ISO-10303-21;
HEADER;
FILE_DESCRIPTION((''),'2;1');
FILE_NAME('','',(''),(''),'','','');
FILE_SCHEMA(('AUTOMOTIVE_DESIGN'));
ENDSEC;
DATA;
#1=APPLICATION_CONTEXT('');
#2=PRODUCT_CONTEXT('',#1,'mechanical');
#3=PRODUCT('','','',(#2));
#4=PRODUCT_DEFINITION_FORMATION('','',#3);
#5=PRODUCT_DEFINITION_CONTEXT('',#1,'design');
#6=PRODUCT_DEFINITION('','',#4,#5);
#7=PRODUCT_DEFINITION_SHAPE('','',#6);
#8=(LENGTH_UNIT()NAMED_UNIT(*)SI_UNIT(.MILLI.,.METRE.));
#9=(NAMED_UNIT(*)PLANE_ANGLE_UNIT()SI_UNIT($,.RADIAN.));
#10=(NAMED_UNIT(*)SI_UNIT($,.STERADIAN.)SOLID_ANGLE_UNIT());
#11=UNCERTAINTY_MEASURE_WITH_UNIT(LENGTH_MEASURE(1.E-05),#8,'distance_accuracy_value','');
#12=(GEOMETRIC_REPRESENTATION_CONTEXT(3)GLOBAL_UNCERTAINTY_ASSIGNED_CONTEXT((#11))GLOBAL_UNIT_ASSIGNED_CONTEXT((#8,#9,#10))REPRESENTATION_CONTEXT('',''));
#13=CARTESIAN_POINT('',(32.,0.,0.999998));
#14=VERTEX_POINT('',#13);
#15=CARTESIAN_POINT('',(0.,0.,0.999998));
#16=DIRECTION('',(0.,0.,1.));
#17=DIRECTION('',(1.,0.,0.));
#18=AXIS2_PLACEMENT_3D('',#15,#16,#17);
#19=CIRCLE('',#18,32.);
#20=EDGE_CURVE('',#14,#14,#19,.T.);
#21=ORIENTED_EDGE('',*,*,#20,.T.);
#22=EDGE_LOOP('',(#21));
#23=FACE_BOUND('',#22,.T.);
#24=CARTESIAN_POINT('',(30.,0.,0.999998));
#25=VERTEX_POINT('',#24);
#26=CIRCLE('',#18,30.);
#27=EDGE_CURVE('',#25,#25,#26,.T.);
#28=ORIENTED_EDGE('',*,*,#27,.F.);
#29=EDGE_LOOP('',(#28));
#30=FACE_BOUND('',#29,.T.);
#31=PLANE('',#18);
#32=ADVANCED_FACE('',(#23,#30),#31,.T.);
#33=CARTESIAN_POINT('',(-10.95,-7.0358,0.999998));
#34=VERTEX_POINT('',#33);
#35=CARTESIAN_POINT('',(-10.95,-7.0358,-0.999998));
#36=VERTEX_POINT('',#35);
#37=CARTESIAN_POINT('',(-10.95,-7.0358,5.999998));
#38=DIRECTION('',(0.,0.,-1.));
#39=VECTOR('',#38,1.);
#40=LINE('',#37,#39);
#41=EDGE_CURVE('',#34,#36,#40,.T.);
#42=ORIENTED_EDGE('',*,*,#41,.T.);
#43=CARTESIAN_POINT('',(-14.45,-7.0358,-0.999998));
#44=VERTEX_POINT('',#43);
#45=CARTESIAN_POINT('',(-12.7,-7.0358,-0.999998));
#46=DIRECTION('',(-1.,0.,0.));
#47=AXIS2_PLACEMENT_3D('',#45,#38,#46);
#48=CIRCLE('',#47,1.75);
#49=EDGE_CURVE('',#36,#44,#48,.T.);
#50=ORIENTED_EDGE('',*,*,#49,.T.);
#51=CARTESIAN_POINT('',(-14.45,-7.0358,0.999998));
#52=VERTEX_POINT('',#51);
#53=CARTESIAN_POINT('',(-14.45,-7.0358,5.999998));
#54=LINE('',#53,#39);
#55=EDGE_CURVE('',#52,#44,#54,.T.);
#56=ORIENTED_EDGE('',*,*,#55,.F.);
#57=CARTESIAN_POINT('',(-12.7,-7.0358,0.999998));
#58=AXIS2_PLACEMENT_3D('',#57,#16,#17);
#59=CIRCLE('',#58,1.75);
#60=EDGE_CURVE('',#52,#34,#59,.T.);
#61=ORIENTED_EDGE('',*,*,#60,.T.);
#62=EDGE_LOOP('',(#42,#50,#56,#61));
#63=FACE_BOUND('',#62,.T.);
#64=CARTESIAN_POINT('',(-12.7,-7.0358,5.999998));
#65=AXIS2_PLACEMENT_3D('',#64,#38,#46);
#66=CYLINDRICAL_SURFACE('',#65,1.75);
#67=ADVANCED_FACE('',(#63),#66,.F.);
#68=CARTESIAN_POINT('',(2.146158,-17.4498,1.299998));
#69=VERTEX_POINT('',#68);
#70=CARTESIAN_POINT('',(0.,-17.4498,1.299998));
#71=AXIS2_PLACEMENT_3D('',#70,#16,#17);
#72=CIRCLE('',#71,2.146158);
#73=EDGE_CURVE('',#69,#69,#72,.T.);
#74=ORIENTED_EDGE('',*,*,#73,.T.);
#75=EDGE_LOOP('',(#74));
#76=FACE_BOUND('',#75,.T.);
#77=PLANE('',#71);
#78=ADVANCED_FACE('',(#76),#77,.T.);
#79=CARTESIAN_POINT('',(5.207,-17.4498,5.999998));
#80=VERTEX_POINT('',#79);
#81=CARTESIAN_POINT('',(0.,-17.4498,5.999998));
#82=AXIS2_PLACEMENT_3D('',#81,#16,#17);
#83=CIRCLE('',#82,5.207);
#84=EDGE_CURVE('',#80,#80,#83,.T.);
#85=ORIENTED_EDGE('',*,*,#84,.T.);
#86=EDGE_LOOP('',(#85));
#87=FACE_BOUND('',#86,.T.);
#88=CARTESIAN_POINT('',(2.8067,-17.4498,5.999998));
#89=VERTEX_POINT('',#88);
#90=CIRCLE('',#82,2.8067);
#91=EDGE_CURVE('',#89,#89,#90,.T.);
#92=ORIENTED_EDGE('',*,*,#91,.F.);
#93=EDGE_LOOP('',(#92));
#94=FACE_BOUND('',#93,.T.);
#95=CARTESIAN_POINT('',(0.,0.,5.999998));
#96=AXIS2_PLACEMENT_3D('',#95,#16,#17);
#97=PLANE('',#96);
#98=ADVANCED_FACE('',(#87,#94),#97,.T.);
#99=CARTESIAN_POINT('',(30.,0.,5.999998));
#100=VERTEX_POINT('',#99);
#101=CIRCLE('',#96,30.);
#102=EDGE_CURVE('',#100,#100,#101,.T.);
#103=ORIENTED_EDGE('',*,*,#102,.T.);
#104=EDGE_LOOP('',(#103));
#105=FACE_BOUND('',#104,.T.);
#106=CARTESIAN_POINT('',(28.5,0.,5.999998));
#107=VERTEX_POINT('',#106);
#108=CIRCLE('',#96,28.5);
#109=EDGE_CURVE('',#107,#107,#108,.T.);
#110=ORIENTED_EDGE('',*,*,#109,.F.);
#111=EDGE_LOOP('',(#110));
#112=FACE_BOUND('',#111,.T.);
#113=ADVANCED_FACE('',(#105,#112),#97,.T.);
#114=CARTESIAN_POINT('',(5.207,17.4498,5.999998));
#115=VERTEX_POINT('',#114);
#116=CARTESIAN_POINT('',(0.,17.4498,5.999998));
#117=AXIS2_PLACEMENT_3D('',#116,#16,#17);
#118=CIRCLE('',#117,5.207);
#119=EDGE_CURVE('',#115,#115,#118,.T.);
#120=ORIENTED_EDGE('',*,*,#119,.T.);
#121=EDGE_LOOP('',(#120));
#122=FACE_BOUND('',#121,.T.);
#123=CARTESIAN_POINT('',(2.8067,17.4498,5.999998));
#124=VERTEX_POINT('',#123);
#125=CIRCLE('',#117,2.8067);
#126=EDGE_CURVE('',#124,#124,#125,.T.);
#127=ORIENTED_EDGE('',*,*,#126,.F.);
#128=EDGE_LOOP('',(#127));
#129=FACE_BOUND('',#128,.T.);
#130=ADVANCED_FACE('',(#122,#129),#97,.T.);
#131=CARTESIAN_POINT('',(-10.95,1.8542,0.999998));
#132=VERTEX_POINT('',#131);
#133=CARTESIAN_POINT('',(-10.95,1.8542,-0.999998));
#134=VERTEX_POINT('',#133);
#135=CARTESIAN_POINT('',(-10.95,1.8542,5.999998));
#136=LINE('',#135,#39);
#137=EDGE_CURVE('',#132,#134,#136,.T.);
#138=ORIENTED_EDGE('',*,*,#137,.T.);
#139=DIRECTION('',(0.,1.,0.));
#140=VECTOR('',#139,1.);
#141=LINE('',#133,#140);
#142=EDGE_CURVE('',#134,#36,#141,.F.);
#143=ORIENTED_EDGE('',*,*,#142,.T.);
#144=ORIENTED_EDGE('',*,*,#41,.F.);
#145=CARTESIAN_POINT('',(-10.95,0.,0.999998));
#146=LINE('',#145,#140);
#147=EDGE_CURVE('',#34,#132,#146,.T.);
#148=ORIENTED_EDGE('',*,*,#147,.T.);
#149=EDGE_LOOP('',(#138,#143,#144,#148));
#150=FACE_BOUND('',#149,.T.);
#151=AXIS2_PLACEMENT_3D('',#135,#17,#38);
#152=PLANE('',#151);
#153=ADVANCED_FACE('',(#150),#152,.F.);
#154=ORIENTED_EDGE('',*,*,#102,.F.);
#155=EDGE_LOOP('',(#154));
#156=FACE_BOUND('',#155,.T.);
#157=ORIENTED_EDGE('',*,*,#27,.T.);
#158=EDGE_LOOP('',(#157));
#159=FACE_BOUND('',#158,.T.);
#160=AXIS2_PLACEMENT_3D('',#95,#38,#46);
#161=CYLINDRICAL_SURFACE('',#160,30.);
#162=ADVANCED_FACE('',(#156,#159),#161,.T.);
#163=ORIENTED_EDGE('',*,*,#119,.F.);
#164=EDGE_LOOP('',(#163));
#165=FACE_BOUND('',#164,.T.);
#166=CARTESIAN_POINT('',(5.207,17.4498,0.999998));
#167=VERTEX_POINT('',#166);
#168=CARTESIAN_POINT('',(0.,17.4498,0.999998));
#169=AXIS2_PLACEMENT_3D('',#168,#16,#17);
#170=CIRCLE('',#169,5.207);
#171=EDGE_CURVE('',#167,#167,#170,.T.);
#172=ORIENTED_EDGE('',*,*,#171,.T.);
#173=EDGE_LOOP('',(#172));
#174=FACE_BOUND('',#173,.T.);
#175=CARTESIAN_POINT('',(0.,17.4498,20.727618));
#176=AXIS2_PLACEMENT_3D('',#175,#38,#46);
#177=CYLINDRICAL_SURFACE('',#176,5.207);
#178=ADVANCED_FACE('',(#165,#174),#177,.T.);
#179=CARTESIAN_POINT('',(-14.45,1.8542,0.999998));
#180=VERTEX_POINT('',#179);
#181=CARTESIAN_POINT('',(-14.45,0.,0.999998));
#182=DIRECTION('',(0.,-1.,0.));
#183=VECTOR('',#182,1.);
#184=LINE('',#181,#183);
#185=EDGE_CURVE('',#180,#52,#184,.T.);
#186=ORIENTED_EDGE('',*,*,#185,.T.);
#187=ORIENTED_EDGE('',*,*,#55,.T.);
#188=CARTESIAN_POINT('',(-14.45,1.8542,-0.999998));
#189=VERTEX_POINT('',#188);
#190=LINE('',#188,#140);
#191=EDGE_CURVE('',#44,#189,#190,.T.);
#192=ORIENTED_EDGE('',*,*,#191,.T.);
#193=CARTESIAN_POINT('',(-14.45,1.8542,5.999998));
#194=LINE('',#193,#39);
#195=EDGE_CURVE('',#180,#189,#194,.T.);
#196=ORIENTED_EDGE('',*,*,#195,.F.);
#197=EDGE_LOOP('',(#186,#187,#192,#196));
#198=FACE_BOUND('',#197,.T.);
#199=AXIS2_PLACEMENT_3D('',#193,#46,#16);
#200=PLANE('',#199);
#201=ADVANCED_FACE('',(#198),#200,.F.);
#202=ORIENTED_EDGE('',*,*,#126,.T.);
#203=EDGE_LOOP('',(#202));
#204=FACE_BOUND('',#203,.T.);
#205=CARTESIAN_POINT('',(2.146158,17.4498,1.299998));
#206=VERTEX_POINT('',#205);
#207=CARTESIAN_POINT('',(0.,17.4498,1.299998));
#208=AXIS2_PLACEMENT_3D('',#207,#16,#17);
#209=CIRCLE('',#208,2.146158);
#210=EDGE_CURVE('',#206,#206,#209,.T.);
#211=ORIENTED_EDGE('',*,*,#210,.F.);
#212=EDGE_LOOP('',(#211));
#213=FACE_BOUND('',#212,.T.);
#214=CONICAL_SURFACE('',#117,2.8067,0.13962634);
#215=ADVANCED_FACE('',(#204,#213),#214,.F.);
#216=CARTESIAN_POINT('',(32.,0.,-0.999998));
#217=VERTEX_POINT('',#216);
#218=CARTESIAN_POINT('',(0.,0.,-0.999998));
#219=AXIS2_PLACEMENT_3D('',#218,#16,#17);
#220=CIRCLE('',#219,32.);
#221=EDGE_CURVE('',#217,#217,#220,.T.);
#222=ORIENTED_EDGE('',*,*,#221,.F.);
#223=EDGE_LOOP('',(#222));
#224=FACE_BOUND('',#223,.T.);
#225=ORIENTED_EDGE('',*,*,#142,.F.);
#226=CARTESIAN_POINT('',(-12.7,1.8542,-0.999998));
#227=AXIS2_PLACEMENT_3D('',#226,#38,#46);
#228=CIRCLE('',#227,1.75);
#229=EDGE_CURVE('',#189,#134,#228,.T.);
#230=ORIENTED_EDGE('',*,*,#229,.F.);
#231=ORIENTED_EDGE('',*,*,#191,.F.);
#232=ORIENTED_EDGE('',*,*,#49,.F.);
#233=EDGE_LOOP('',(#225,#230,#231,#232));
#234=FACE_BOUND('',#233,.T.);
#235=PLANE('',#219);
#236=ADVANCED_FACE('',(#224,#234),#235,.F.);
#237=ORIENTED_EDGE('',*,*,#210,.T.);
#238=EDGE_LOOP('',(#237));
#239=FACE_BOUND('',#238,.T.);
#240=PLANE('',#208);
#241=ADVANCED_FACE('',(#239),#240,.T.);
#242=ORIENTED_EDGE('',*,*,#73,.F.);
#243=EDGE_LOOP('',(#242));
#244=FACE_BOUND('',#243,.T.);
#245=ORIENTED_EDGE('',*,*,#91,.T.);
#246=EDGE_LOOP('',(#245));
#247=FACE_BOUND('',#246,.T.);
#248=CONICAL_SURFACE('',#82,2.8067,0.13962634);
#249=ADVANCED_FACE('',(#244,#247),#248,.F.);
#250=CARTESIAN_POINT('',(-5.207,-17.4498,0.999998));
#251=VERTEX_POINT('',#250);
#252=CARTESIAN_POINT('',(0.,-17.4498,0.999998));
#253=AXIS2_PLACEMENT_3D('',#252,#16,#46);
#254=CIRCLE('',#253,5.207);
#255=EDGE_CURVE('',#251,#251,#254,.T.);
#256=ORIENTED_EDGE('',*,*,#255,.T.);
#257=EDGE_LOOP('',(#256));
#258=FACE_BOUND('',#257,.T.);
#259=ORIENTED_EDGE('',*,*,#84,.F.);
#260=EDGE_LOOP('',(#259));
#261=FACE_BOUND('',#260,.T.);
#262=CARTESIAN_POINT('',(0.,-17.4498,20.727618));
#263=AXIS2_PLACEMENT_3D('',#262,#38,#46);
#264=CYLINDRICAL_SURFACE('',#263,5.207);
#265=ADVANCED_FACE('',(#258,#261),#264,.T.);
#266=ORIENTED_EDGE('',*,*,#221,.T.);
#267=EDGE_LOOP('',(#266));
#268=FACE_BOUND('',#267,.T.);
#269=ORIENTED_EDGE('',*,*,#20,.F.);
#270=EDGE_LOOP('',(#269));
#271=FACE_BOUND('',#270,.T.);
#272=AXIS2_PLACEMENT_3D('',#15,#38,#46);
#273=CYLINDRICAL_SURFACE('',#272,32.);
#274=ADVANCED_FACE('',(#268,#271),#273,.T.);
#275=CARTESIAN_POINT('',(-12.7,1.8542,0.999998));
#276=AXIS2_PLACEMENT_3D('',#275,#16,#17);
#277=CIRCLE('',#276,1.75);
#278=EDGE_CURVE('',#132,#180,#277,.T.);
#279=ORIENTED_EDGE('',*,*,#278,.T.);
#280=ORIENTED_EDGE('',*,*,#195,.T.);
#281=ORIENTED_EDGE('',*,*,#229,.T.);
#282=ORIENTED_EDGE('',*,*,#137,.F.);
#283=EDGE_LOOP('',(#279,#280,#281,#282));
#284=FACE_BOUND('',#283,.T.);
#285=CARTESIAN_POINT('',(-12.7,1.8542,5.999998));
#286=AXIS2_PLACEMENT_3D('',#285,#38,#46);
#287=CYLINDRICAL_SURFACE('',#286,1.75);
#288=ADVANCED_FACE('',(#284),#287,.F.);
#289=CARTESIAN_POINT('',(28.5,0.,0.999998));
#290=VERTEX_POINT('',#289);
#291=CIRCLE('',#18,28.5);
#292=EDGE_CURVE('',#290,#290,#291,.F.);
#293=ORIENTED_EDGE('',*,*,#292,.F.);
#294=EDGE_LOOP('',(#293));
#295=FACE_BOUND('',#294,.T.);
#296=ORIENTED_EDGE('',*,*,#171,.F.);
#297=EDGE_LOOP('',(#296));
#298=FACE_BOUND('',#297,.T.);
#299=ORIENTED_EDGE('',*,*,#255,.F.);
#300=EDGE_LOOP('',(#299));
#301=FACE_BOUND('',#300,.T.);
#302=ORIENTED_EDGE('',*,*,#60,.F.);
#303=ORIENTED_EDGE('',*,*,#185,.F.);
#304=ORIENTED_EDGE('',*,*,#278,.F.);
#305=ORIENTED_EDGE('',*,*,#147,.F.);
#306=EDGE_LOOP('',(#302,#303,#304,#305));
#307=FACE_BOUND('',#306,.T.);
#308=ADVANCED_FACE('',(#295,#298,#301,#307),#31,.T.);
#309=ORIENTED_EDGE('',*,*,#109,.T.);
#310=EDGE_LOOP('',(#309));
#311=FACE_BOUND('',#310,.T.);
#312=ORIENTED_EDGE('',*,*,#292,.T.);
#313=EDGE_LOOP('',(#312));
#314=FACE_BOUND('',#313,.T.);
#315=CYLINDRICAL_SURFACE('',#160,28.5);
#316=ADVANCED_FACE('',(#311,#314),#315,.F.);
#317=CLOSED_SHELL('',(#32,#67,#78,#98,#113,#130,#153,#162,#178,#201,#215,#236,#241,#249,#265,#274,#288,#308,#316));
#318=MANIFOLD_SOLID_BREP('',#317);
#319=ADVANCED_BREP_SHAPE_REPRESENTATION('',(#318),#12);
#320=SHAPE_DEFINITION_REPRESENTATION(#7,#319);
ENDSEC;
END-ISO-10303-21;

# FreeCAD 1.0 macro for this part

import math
import FreeCAD as App
import Part
import Sketcher
Q = App.Units.Quantity

doc = App.newDocument("Part")
body = doc.addObject("PartDesign::Body", "Body")

# Sketch on XY plane
sketch1 = body.newObject("Sketcher::SketchObject", "Sketch")
sketch1.AttachmentSupport = (doc.getObject("XY_Plane"), [""])
sketch1.MapMode = "FlatFace"
sketch1.addGeometry(Part.Circle(App.Vector(0, 0, 0), App.Vector(0, 0, 1), 32), False)
sketch1.addConstraint([
    Sketcher.Constraint("Coincident", 0, 3, -1, 1),
    Sketcher.Constraint("Diameter", 0, Q("64 mm")),
])
pad1 = body.newObject("PartDesign::Pad", "Pad")
pad1.Profile = sketch1
pad1.Length = 1.999996
pad1.Midplane = True

# Sketch on XY plane
sketch2 = body.newObject("Sketcher::SketchObject", "Sketch001")
sketch2.AttachmentSupport = (doc.getObject("XY_Plane"), [""])
sketch2.MapMode = "FlatFace"
sketch2.AttachmentOffset = App.Placement(App.Vector(0, 0, 0.999998), App.Rotation())
sketch2.addGeometry([
    Part.Circle(App.Vector(0, 0, 0), App.Vector(0, 0, 1), 30),
    Part.Circle(App.Vector(0, 0, 0), App.Vector(0, 0, 1), 28),
], False)
sketch2.addConstraint([
    Sketcher.Constraint("Coincident", 0, 3, -1, 1),
    Sketcher.Constraint("Coincident", 1, 3, -1, 1),
    Sketcher.Constraint("Diameter", 0, Q("60 mm")),
    Sketcher.Constraint("Diameter", 1, Q("57 mm")),
])
pad2 = body.newObject("PartDesign::Pad", "Pad001")
pad2.Profile = sketch2
pad2.Length = 5

# Sketch on XY plane
sketch3 = body.newObject("Sketcher::SketchObject", "Sketch002")
sketch3.AttachmentSupport = (doc.getObject("XY_Plane"), [""])
sketch3.MapMode = "FlatFace"
sketch3.AttachmentOffset = App.Placement(App.Vector(0, 0, 0.999998), App.Rotation())
sketch3.addGeometry([
    Part.Circle(App.Vector(0, 17, 0), App.Vector(0, 0, 1), 5),
    Part.Circle(App.Vector(0, -17, 0), App.Vector(0, 0, 1), 5),
], False)
sketch3.addConstraint([
    Sketcher.Constraint("Equal", 0, 1),
    Sketcher.Constraint("Symmetric", 0, 3, 1, 3, -1, 1),
    Sketcher.Constraint("PointOnObject", 0, 3, -2),
    Sketcher.Constraint("Diameter", 0, Q("10.414 mm")),
    Sketcher.Constraint("DistanceY", -1, 1, 0, 3, Q("17.4498 mm")),
])
pad3 = body.newObject("PartDesign::Pad", "Pad002")
pad3.Profile = sketch3
pad3.Length = 5

# Sketch on XY plane
sketch4 = body.newObject("Sketcher::SketchObject", "Sketch003")
sketch4.AttachmentSupport = (doc.getObject("XY_Plane"), [""])
sketch4.MapMode = "FlatFace"
sketch4.AttachmentOffset = App.Placement(App.Vector(0, 0, -0.999998), App.Rotation())
sketch4.addGeometry([
    Part.LineSegment(App.Vector(-14.4, -7, 0), App.Vector(-14.4, 1.9, 0)),
    Part.ArcOfCircle(Part.Circle(App.Vector(-12.7, 1.9, 0), App.Vector(0, 0, 1), 1.8), math.radians(0), math.radians(180)),
    Part.LineSegment(App.Vector(-10.9, 1.9, 0), App.Vector(-10.9, -7, 0)),
    Part.ArcOfCircle(Part.Circle(App.Vector(-12.7, -7, 0), App.Vector(0, 0, 1), 1.8), math.radians(180), math.radians(360)),
], False)
sketch4.addConstraint([
    Sketcher.Constraint("Tangent", 0, 2, 1, 2),
    Sketcher.Constraint("Tangent", 1, 1, 2, 1),
    Sketcher.Constraint("Tangent", 2, 2, 3, 2),
    Sketcher.Constraint("Tangent", 3, 1, 0, 1),
    Sketcher.Constraint("Vertical", 0),
    Sketcher.Constraint("Vertical", 2),
    Sketcher.Constraint("Radius", 1, Q("1.75 mm")),
    Sketcher.Constraint("DistanceY", 0, 1, 0, 2, Q("8.89 mm")),
    Sketcher.Constraint("DistanceX", 1, 3, -1, 1, Q("12.7 mm")),
    Sketcher.Constraint("DistanceY", -1, 1, 1, 3, Q("1.8542 mm")),
])
pocket1 = body.newObject("PartDesign::Pocket", "Pocket")
pocket1.Profile = sketch4
pocket1.Type = "ThroughAll"
pocket1.Midplane = True

# Sketch on XY plane
sketch5 = body.newObject("Sketcher::SketchObject", "Sketch004")
sketch5.AttachmentSupport = (doc.getObject("XY_Plane"), [""])
sketch5.MapMode = "FlatFace"
sketch5.AttachmentOffset = App.Placement(App.Vector(0, 0, 5.999998), App.Rotation())
sketch5.addGeometry([
    Part.Circle(App.Vector(0, 17.4, 0), App.Vector(0, 0, 1), 2.8),
    Part.Circle(App.Vector(0, -17.4, 0), App.Vector(0, 0, 1), 2.8),
], False)
sketch5.addConstraint([
    Sketcher.Constraint("Equal", 0, 1),
    Sketcher.Constraint("Symmetric", 0, 3, 1, 3, -1, 1),
    Sketcher.Constraint("PointOnObject", 0, 3, -2),
    Sketcher.Constraint("Diameter", 0, Q("5.6134 mm")),
    Sketcher.Constraint("DistanceY", -1, 1, 0, 3, Q("17.4498 mm")),
])
pocket2 = body.newObject("PartDesign::Pocket", "Pocket001")
pocket2.Profile = sketch5
pocket2.Length = 4.7
pocket2.TaperAngle = -8

doc.recompute()
